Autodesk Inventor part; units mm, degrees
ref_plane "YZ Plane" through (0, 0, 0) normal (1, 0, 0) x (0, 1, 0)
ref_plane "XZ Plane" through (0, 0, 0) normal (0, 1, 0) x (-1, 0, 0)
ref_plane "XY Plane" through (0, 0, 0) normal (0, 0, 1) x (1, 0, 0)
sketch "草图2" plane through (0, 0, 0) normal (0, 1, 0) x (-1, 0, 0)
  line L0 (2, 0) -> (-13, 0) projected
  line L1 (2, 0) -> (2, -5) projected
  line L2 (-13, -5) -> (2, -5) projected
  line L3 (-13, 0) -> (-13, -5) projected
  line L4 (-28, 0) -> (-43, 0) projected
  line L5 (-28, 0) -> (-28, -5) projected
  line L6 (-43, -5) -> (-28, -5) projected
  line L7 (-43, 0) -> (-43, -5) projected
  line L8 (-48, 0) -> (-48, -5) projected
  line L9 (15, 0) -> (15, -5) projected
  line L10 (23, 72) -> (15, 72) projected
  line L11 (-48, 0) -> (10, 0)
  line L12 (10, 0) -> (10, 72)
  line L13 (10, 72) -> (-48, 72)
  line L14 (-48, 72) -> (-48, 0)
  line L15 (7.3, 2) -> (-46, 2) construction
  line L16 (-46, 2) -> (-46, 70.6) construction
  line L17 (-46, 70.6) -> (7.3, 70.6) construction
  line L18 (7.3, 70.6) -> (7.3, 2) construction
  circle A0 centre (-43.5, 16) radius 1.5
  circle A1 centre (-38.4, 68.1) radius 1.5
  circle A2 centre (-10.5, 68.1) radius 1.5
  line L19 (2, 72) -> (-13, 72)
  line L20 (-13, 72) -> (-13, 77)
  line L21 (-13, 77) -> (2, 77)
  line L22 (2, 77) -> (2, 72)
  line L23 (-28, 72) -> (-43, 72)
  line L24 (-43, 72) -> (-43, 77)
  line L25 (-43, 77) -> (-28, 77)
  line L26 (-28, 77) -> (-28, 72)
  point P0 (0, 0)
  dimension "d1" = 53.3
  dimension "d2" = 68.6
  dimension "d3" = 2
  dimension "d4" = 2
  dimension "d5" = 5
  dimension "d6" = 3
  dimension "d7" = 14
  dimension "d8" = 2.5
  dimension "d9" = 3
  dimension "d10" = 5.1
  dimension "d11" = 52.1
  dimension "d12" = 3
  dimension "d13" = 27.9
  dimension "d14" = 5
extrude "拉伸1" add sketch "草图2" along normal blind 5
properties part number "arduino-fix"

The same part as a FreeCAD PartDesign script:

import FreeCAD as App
import Part
import Sketcher

V = App.Vector
Q = App.Units.Quantity

doc = App.newDocument("Part")
body = doc.addObject("PartDesign::Body", "Body")

sketch1 = doc.addObject("Sketcher::SketchObject", "Sketch")
body.addObject(sketch1)
sketch1.AttachmentSupport = (doc.XZ_Plane, [""])
sketch1.MapMode = "FlatFace"
sketch1.addGeometry(Part.LineSegment(V(-2, -5, 0), V(-2, 0, 0)), False)
sketch1.addGeometry(Part.LineSegment(V(-2, 0, 0), V(-10, 0, 0)), False)
sketch1.addGeometry(Part.LineSegment(V(-10, 0, 0), V(-10, 72, 0)), False)
sketch1.addGeometry(Part.LineSegment(V(-10, 72, 0), V(-2, 72, 0)), False)
sketch1.addGeometry(Part.LineSegment(V(-2, 72, 0), V(-2, 77, 0)), False)
sketch1.addGeometry(Part.LineSegment(V(-2, 77, 0), V(13, 77, 0)), False)
sketch1.addGeometry(Part.LineSegment(V(13, 77, 0), V(13, 72, 0)), False)
sketch1.addGeometry(Part.LineSegment(V(13, 72, 0), V(28, 72, 0)), False)
sketch1.addGeometry(Part.LineSegment(V(28, 72, 0), V(28, 77, 0)), False)
sketch1.addGeometry(Part.LineSegment(V(28, 77, 0), V(43, 77, 0)), False)
sketch1.addGeometry(Part.LineSegment(V(43, 77, 0), V(43, 72, 0)), False)
sketch1.addGeometry(Part.LineSegment(V(43, 72, 0), V(48, 72, 0)), False)
sketch1.addGeometry(Part.LineSegment(V(48, 72, 0), V(48, 0, 0)), False)
sketch1.addGeometry(Part.LineSegment(V(48, 0, 0), V(43, 0, 0)), False)
sketch1.addGeometry(Part.LineSegment(V(43, 0, 0), V(43, -5, 0)), False)
sketch1.addGeometry(Part.LineSegment(V(43, -5, 0), V(28, -5, 0)), False)
sketch1.addGeometry(Part.LineSegment(V(28, -5, 0), V(28, 0, 0)), False)
sketch1.addGeometry(Part.LineSegment(V(28, 0, 0), V(13, 0, 0)), False)
sketch1.addGeometry(Part.LineSegment(V(13, 0, 0), V(13, -5, 0)), False)
sketch1.addGeometry(Part.LineSegment(V(13, -5, 0), V(-2, -5, 0)), False)
sketch1.addGeometry(Part.Circle(V(10.5, 68.1, 0), V(0, 0, 1), 1.5), False)
sketch1.addGeometry(Part.Circle(V(43.5, 16, 0), V(0, 0, 1), 1.5), False)
sketch1.addGeometry(Part.Circle(V(38.4, 68.1, 0), V(0, 0, 1), 1.5), False)
sketch1.addConstraint(Sketcher.Constraint("Coincident", 0, 2, 1, 1))
sketch1.addConstraint(Sketcher.Constraint("Coincident", 1, 2, 2, 1))
sketch1.addConstraint(Sketcher.Constraint("Coincident", 2, 2, 3, 1))
sketch1.addConstraint(Sketcher.Constraint("Coincident", 3, 2, 4, 1))
sketch1.addConstraint(Sketcher.Constraint("Coincident", 4, 2, 5, 1))
sketch1.addConstraint(Sketcher.Constraint("Coincident", 5, 2, 6, 1))
sketch1.addConstraint(Sketcher.Constraint("Coincident", 6, 2, 7, 1))
sketch1.addConstraint(Sketcher.Constraint("Coincident", 7, 2, 8, 1))
sketch1.addConstraint(Sketcher.Constraint("Coincident", 8, 2, 9, 1))
sketch1.addConstraint(Sketcher.Constraint("Coincident", 9, 2, 10, 1))
sketch1.addConstraint(Sketcher.Constraint("Coincident", 10, 2, 11, 1))
sketch1.addConstraint(Sketcher.Constraint("Coincident", 11, 2, 12, 1))
sketch1.addConstraint(Sketcher.Constraint("Coincident", 12, 2, 13, 1))
sketch1.addConstraint(Sketcher.Constraint("Coincident", 13, 2, 14, 1))
sketch1.addConstraint(Sketcher.Constraint("Coincident", 14, 2, 15, 1))
sketch1.addConstraint(Sketcher.Constraint("Coincident", 15, 2, 16, 1))
sketch1.addConstraint(Sketcher.Constraint("Coincident", 16, 2, 17, 1))
sketch1.addConstraint(Sketcher.Constraint("Coincident", 17, 2, 18, 1))
sketch1.addConstraint(Sketcher.Constraint("Coincident", 18, 2, 19, 1))
sketch1.addConstraint(Sketcher.Constraint("Coincident", 19, 2, 0, 1))
sketch1.addConstraint(Sketcher.Constraint("Vertical", 0))
sketch1.addConstraint(Sketcher.Constraint("Horizontal", 1))
sketch1.addConstraint(Sketcher.Constraint("Vertical", 2))
sketch1.addConstraint(Sketcher.Constraint("Horizontal", 3))
sketch1.addConstraint(Sketcher.Constraint("Vertical", 4))
sketch1.addConstraint(Sketcher.Constraint("Horizontal", 5))
sketch1.addConstraint(Sketcher.Constraint("Vertical", 6))
sketch1.addConstraint(Sketcher.Constraint("Horizontal", 7))
sketch1.addConstraint(Sketcher.Constraint("Vertical", 8))
sketch1.addConstraint(Sketcher.Constraint("Horizontal", 9))
sketch1.addConstraint(Sketcher.Constraint("Vertical", 10))
sketch1.addConstraint(Sketcher.Constraint("Horizontal", 11))
sketch1.addConstraint(Sketcher.Constraint("Vertical", 12))
sketch1.addConstraint(Sketcher.Constraint("Horizontal", 13))
sketch1.addConstraint(Sketcher.Constraint("Vertical", 14))
sketch1.addConstraint(Sketcher.Constraint("Horizontal", 15))
sketch1.addConstraint(Sketcher.Constraint("Vertical", 16))
sketch1.addConstraint(Sketcher.Constraint("Horizontal", 17))
sketch1.addConstraint(Sketcher.Constraint("Vertical", 18))
sketch1.addConstraint(Sketcher.Constraint("Horizontal", 19))
sketch1.addConstraint(Sketcher.Constraint("Equal", 20, 21))
sketch1.addConstraint(Sketcher.Constraint("Equal", 21, 22))
sketch1.addConstraint(Sketcher.Constraint("PointOnObject", 0, 2, -1))
sketch1.addConstraint(Sketcher.Constraint("PointOnObject", 12, 2, -1))
sketch1.addConstraint(Sketcher.Constraint("PointOnObject", 16, 2, -1))
sketch1.addConstraint(Sketcher.Constraint("Horizontal", 20, 3, 22, 3))
sketch1.addConstraint(Sketcher.Constraint("Horizontal", 3, 2, 6, 2))
sketch1.addConstraint(Sketcher.Constraint("Horizontal", 5, 2, 8, 2))
sketch1.addConstraint(Sketcher.Constraint("Horizontal", 7, 2, 10, 2))
sketch1.addConstraint(Sketcher.Constraint("Horizontal", 15, 2, 18, 2))
sketch1.addConstraint(Sketcher.Constraint("Vertical", 0, 2, 3, 2))
sketch1.addConstraint(Sketcher.Constraint("Vertical", 10, 2, 13, 2))
sketch1.addConstraint(Sketcher.Constraint("Vertical", 8, 2, 15, 2))
sketch1.addConstraint(Sketcher.Constraint("Vertical", 6, 2, 17, 2))
sketch1.addConstraint(Sketcher.Constraint("Equal", 5, 7))
sketch1.addConstraint(Sketcher.Constraint("Equal", 7, 9))
sketch1.addConstraint(Sketcher.Constraint("Equal", 13, 0))
sketch1.addConstraint(Sketcher.Constraint("Equal", 0, 4))
sketch1.addConstraint(Sketcher.Constraint("Diameter", 20, Q("3 mm")))
sketch1.addConstraint(Sketcher.Constraint("DistanceX", 11, 1, 11, 2, Q("5 mm")))
sketch1.addConstraint(Sketcher.Constraint("DistanceX", 0, 2, -1, 1, Q("2 mm")))
sketch1.addConstraint(Sketcher.Constraint("DistanceY", 21, 3, 20, 3, Q("52.1 mm")))
sketch1.addConstraint(Sketcher.Constraint("DistanceX", 20, 3, 22, 3, Q("27.9 mm")))
sketch1.addConstraint(Sketcher.Constraint("DistanceX", 22, 3, 21, 3, Q("5.1 mm")))
sketch1.addConstraint(Sketcher.Constraint("DistanceX", 20, 3, 5, 2, Q("2.5 mm")))
sketch1.addConstraint(Sketcher.Constraint("DistanceX", 1, 2, 1, 1, Q("8 mm")))
sketch1.addConstraint(Sketcher.Constraint("DistanceX", 5, 1, 5, 2, Q("15 mm")))
sketch1.addConstraint(Sketcher.Constraint("DistanceY", 2, 1, 2, 2, Q("72 mm")))
sketch1.addConstraint(Sketcher.Constraint("DistanceY", -1, 1, 21, 3, Q("16 mm")))
pad1 = doc.addObject("PartDesign::Pad", "Pad")
body.addObject(pad1)
pad1.Profile = sketch1
pad1.Length = 5
pad1.Reversed = True

doc.recompute()
